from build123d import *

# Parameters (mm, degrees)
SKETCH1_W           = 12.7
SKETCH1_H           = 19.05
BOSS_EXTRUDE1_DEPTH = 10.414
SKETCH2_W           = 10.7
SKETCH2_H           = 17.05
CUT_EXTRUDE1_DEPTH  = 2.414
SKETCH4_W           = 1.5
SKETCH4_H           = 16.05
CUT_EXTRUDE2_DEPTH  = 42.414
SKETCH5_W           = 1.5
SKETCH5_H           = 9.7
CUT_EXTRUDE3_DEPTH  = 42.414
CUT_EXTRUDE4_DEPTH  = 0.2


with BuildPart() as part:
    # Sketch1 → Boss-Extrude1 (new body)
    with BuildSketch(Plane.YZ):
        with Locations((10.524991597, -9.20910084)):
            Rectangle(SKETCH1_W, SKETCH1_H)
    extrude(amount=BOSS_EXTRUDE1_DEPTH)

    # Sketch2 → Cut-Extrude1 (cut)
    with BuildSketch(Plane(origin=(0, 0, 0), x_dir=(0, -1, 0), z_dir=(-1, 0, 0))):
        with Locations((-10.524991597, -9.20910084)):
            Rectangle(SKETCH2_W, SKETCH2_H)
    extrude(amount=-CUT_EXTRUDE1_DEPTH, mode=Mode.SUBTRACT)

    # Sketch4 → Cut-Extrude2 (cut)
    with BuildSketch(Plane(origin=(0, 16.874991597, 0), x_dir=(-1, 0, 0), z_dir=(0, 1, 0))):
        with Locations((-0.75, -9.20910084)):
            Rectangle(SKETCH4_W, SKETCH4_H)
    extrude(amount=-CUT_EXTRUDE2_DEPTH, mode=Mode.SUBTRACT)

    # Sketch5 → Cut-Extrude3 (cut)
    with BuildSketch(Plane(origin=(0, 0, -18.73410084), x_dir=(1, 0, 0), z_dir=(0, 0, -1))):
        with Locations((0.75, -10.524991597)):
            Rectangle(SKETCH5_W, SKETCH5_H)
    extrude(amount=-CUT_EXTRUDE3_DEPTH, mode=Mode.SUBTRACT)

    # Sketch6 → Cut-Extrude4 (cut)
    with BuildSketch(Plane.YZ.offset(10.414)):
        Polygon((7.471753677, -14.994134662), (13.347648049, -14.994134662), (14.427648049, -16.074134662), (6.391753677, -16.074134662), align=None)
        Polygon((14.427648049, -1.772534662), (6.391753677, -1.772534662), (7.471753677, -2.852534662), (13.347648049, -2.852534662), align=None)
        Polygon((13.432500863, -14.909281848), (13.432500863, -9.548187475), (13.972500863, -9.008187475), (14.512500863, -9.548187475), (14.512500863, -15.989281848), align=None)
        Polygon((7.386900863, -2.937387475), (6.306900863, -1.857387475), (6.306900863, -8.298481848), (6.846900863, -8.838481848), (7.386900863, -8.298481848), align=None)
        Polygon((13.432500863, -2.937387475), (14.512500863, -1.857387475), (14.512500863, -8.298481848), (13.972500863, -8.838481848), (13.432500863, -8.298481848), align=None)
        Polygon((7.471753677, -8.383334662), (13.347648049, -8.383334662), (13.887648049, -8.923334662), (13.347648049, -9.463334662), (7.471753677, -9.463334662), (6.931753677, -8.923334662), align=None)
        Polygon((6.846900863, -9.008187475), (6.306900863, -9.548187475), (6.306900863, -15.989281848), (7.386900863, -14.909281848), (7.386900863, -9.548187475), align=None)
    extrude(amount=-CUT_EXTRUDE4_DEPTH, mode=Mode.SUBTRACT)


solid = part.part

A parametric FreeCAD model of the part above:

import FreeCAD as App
import Part
import Sketcher
from FreeCAD import Vector
Q = App.Units.Quantity


def add_polygon(sketch, points):
    """Adds a closed chain of lines whose ends are joined by coincident constraints."""
    first, n = sketch.GeometryCount, len(points)
    for a, b in zip(points, points[1:] + points[:1]):
        sketch.addGeometry(Part.LineSegment(App.Vector(*a, 0), App.Vector(*b, 0)), False)
    for i in range(n):
        sketch.addConstraint(Sketcher.Constraint("Coincident", first + i, 2, first + (i + 1) % n, 1))

doc = App.newDocument("Part")
body = doc.addObject("PartDesign::Body", "Body")

sketch1 = body.newObject("Sketcher::SketchObject", "Sketch")
sketch1.AttachmentSupport = (doc.getObject("YZ_Plane"), [""])
sketch1.MapMode = "FlatFace"
add_polygon(sketch1, [(4.174992, 0.315899), (4.174992, -18.734101), (16.874992, -18.734101), (16.874992, 0.315899)])
sketch1.addConstraint([
    Sketcher.Constraint("Vertical", 0),
    Sketcher.Constraint("Horizontal", 1),
    Sketcher.Constraint("Vertical", 2),
    Sketcher.Constraint("Horizontal", 3),
    Sketcher.Constraint("DistanceX", 1, 1, 1, 2, Q("12.7 mm")),
    Sketcher.Constraint("DistanceY", 0, 2, 0, 1, Q("19.05 mm")),
    Sketcher.Constraint("DistanceY", 0, 2, -1, 1, Q("18.734101 mm")),
    Sketcher.Constraint("DistanceX", -1, 1, 0, 2, Q("4.174992 mm")),
])
pad1 = body.newObject("PartDesign::Pad", "Pad")
pad1.Profile = sketch1
pad1.Length = 10.414

sketch2 = body.newObject("Sketcher::SketchObject", "Sketch001")
sketch2.AttachmentSupport = (doc.getObject("YZ_Plane"), [""])
sketch2.MapMode = "FlatFace"
add_polygon(sketch2, [(15.874992, -0.684101), (15.874992, -17.734101), (5.174992, -17.734101), (5.174992, -0.684101)])
sketch2.addConstraint([
    Sketcher.Constraint("Vertical", 0),
    Sketcher.Constraint("Horizontal", 1),
    Sketcher.Constraint("Vertical", 2),
    Sketcher.Constraint("Horizontal", 3),
    Sketcher.Constraint("DistanceX", 1, 2, 1, 1, Q("10.7 mm")),
    Sketcher.Constraint("DistanceY", 0, 2, 0, 1, Q("17.05 mm")),
    Sketcher.Constraint("DistanceY", 0, 2, -1, 1, Q("17.734101 mm")),
    Sketcher.Constraint("DistanceX", -1, 1, 0, 2, Q("15.874992 mm")),
])
pocket1 = body.newObject("PartDesign::Pocket", "Pocket")
pocket1.Profile = sketch2
pocket1.Length = 2.414
pocket1.Reversed = True

sketch3 = body.newObject("Sketcher::SketchObject", "Sketch002")
sketch3.AttachmentSupport = (doc.getObject("XZ_Plane"), [""])
sketch3.MapMode = "FlatFace"
sketch3.AttachmentOffset = App.Placement(Vector(0, 0, -16.874992), App.Rotation())
add_polygon(sketch3, [(1.5, -1.184101), (1.5, -17.234101), (0, -17.234101), (0, -1.184101)])
sketch3.addConstraint([
    Sketcher.Constraint("Vertical", 0),
    Sketcher.Constraint("Horizontal", 1),
    Sketcher.Constraint("Vertical", 2),
    Sketcher.Constraint("Horizontal", 3),
    Sketcher.Constraint("PointOnObject", 1, 2, -2),
    Sketcher.Constraint("DistanceX", 1, 2, 1, 1, Q("1.5 mm")),
    Sketcher.Constraint("DistanceY", 0, 2, 0, 1, Q("16.05 mm")),
    Sketcher.Constraint("DistanceY", 0, 2, -1, 1, Q("17.234101 mm")),
])
pocket2 = body.newObject("PartDesign::Pocket", "Pocket001")
pocket2.Profile = sketch3
pocket2.Length = 42.414
pocket2.Reversed = True

sketch4 = body.newObject("Sketcher::SketchObject", "Sketch003")
sketch4.AttachmentSupport = (doc.getObject("XY_Plane"), [""])
sketch4.MapMode = "FlatFace"
sketch4.AttachmentOffset = App.Placement(Vector(0, 0, -18.734101), App.Rotation())
add_polygon(sketch4, [(0, 5.674992), (0, 15.374992), (1.5, 15.374992), (1.5, 5.674992)])
sketch4.addConstraint([
    Sketcher.Constraint("Vertical", 0),
    Sketcher.Constraint("Horizontal", 1),
    Sketcher.Constraint("Vertical", 2),
    Sketcher.Constraint("Horizontal", 3),
    Sketcher.Constraint("PointOnObject", 0, 2, -2),
    Sketcher.Constraint("DistanceX", 1, 1, 1, 2, Q("1.5 mm")),
    Sketcher.Constraint("DistanceY", 0, 1, 0, 2, Q("9.7 mm")),
    Sketcher.Constraint("DistanceY", -1, 1, 0, 2, Q("15.374992 mm")),
])
pocket3 = body.newObject("PartDesign::Pocket", "Pocket002")
pocket3.Profile = sketch4
pocket3.Length = 42.414
pocket3.Reversed = True

sketch5 = body.newObject("Sketcher::SketchObject", "Sketch004")
sketch5.AttachmentSupport = (doc.getObject("YZ_Plane"), [""])
sketch5.MapMode = "FlatFace"
sketch5.AttachmentOffset = App.Placement(Vector(0, 0, 10.414), App.Rotation())
add_polygon(sketch5, [(13.347648, -14.994135), (7.471754, -14.994135), (6.391754, -16.074135), (14.427648, -16.074135)])
add_polygon(sketch5, [(14.427648, -1.772535), (6.391754, -1.772535), (7.471754, -2.852535), (13.347648, -2.852535)])
add_polygon(sketch5, [(13.432501, -9.548187), (13.432501, -14.909282), (14.512501, -15.989282), (14.512501, -9.548187), (13.972501, -9.008187)])
add_polygon(sketch5, [(7.386901, -2.937387), (6.306901, -1.857387), (6.306901, -8.298482), (6.846901, -8.838482), (7.386901, -8.298482)])
add_polygon(sketch5, [(14.512501, -1.857387), (13.432501, -2.937387), (13.432501, -8.298482), (13.972501, -8.838482), (14.512501, -8.298482)])
add_polygon(sketch5, [(13.347648, -8.383335), (7.471754, -8.383335), (6.931754, -8.923335), (7.471754, -9.463335), (13.347648, -9.463335), (13.887648, -8.923335)])
add_polygon(sketch5, [(6.846901, -9.008187), (6.306901, -9.548187), (6.306901, -15.989282), (7.386901, -14.909282), (7.386901, -9.548187)])
sketch5.addConstraint([
    Sketcher.Constraint("Horizontal", 0),
    Sketcher.Constraint("Horizontal", 2),
    Sketcher.Constraint("Horizontal", 4),
    Sketcher.Constraint("Horizontal", 6),
    Sketcher.Constraint("Vertical", 8),
    Sketcher.Constraint("Vertical", 10),
    Sketcher.Constraint("Vertical", 14),
    Sketcher.Constraint("Vertical", 17),
    Sketcher.Constraint("Vertical", 19),
    Sketcher.Constraint("Vertical", 22),
    Sketcher.Constraint("Horizontal", 23),
    Sketcher.Constraint("Horizontal", 26),
    Sketcher.Constraint("Vertical", 30),
    Sketcher.Constraint("Vertical", 32),
    Sketcher.Constraint("Perpendicular", 1, 3),
    Sketcher.Constraint("Parallel", 3, 5),
    Sketcher.Constraint("Perpendicular", 5, 7),
    Sketcher.Constraint("Perpendicular", 7, 9),
    Sketcher.Constraint("Parallel", 9, 11),
    Sketcher.Constraint("Perpendicular", 11, 12),
    Sketcher.Constraint("Perpendicular", 12, 13),
    Sketcher.Constraint("Parallel", 13, 15),
    Sketcher.Constraint("Perpendicular", 15, 16),
    Sketcher.Constraint("Parallel", 16, 18),
    Sketcher.Constraint("Perpendicular", 18, 20),
    Sketcher.Constraint("Perpendicular", 20, 21),
    Sketcher.Constraint("Parallel", 21, 24),
    Sketcher.Constraint("Perpendicular", 24, 25),
    Sketcher.Constraint("Perpendicular", 25, 27),
    Sketcher.Constraint("Perpendicular", 27, 28),
    Sketcher.Constraint("Perpendicular", 28, 29),
    Sketcher.Constraint("Parallel", 29, 31),
    Sketcher.Constraint("Perpendicular", 31, 33),
    Sketcher.Constraint("Horizontal", 10, 2, 12, 2),
    Sketcher.Constraint("Horizontal", 14, 2, 16, 2),
    Sketcher.Constraint("Horizontal", 17, 2, 18, 2),
    Sketcher.Constraint("Horizontal", 16, 2, 19, 2),
    Sketcher.Constraint("Horizontal", 15, 2, 20, 2),
    Sketcher.Constraint("Horizontal", 19, 2, 21, 2),
    Sketcher.Constraint("Horizontal", 13, 2, 22, 2),
    Sketcher.Constraint("Horizontal", 24, 2, 27, 2),
    Sketcher.Constraint("Horizontal", 12, 2, 29, 2),
    Sketcher.Constraint("Horizontal", 9, 2, 30, 2),
    Sketcher.Constraint("Horizontal", 8, 2, 31, 2),
    Sketcher.Constraint("Horizontal", 29, 2, 32, 2),
    Sketcher.Constraint("Vertical", 1, 2, 4, 2),
    Sketcher.Constraint("Vertical", 0, 2, 5, 2),
    Sketcher.Constraint("Vertical", 3, 2, 6, 2),
    Sketcher.Constraint("Vertical", 12, 2, 18, 2),
    Sketcher.Constraint("Vertical", 11, 2, 20, 2),
    Sketcher.Constraint("Vertical", 5, 2, 23, 2),
    Sketcher.Constraint("Vertical", 23, 2, 25, 2),
    Sketcher.Constraint("Vertical", 6, 2, 26, 2),
    Sketcher.Constraint("Vertical", 14, 2, 29, 2),
    Sketcher.Constraint("Equal", 10, 14),
    Sketcher.Constraint("Equal", 7, 9),
    Sketcher.Constraint("Equal", 21, 24),
    Sketcher.Constraint("DistanceX", 1, 2, 0, 2, Q("1.08 mm")),
    Sketcher.Constraint("DistanceX", -1, 1, 8, 2, Q("13.432501 mm")),
    Sketcher.Constraint("DistanceX", -1, 1, 13, 2, Q("6.306901 mm")),
    Sketcher.Constraint("DistanceY", 0, 2, 4, 2, Q("13.2216 mm")),
    Sketcher.Constraint("DistanceY", 11, 2, 13, 2, Q("7.1508 mm")),
    Sketcher.Constraint("DistanceY", 23, 2, 5, 2, Q("5.5308 mm")),
    Sketcher.Constraint("DistanceX", 0, 2, 0, 1, Q("5.875894 mm")),
    Sketcher.Constraint("DistanceY", 8, 2, 8, 1, Q("5.361094 mm")),
    Sketcher.Constraint("DistanceX", -1, 1, 2, 2, Q("14.427648 mm")),
    Sketcher.Constraint("DistanceY", 8, 2, -1, 1, Q("14.909282 mm")),
    Sketcher.Constraint("DistanceY", 0, 2, -1, 1, Q("14.994135 mm")),
])
pocket4 = body.newObject("PartDesign::Pocket", "Pocket003")
pocket4.Profile = sketch5
pocket4.Length = 0.2

doc.recompute()
